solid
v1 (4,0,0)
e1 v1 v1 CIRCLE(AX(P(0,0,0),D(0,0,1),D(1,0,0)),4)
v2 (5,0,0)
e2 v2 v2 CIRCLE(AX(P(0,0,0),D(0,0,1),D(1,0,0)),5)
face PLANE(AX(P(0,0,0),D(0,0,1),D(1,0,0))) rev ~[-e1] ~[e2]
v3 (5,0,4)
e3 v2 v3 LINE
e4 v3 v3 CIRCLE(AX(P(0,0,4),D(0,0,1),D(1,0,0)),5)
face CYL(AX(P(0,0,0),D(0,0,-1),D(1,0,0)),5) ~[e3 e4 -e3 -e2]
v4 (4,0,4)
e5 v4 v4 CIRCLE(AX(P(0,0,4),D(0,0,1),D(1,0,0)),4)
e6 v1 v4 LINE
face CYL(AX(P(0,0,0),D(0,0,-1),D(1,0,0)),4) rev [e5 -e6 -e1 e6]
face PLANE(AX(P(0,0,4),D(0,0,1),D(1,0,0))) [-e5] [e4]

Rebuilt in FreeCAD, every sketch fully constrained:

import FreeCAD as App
import Part
import Sketcher
from FreeCAD import Vector

doc = App.newDocument("Part")
params = doc.addObject("Spreadsheet::Sheet", "Params")
for row, (alias, value) in enumerate([
    ("sketch1_diameter", "10 mm"),
    ("sketch1_diameter2", "8 mm"),
    ("pad1_length", "4 mm"),
], start=1):
    params.set(f"A{row}", alias)
    params.set(f"B{row}", "=" + value)
    params.setAlias(f"B{row}", alias)

body = doc.addObject("PartDesign::Body", "Body")

sketch1 = doc.addObject("Sketcher::SketchObject", "Sketch")
body.addObject(sketch1)
sketch1.AttachmentSupport = (doc.XY_Plane, [""])
sketch1.MapMode = "FlatFace"
sketch1.addGeometry(Part.Circle(Vector(0, 0, 0), Vector(0, 0, 1), 5), False)
sketch1.addGeometry(Part.Circle(Vector(0, 0, 0), Vector(0, 0, 1), 4), False)
sketch1.addConstraint(Sketcher.Constraint("Coincident", 0, 3, -1, 1))
sketch1.addConstraint(Sketcher.Constraint("Coincident", 1, 3, -1, 1))
sketch1.addConstraint(Sketcher.Constraint("Diameter", 0, 10.0))
sketch1.addConstraint(Sketcher.Constraint("Diameter", 1, 8.0))
sketch1.setExpression("Constraints[2]", "Params.sketch1_diameter")
sketch1.setExpression("Constraints[3]", "Params.sketch1_diameter2")
pad1 = doc.addObject("PartDesign::Pad", "Pad")
body.addObject(pad1)
pad1.Profile = sketch1
pad1.setExpression("Length", "Params.pad1_length")

doc.recompute()
